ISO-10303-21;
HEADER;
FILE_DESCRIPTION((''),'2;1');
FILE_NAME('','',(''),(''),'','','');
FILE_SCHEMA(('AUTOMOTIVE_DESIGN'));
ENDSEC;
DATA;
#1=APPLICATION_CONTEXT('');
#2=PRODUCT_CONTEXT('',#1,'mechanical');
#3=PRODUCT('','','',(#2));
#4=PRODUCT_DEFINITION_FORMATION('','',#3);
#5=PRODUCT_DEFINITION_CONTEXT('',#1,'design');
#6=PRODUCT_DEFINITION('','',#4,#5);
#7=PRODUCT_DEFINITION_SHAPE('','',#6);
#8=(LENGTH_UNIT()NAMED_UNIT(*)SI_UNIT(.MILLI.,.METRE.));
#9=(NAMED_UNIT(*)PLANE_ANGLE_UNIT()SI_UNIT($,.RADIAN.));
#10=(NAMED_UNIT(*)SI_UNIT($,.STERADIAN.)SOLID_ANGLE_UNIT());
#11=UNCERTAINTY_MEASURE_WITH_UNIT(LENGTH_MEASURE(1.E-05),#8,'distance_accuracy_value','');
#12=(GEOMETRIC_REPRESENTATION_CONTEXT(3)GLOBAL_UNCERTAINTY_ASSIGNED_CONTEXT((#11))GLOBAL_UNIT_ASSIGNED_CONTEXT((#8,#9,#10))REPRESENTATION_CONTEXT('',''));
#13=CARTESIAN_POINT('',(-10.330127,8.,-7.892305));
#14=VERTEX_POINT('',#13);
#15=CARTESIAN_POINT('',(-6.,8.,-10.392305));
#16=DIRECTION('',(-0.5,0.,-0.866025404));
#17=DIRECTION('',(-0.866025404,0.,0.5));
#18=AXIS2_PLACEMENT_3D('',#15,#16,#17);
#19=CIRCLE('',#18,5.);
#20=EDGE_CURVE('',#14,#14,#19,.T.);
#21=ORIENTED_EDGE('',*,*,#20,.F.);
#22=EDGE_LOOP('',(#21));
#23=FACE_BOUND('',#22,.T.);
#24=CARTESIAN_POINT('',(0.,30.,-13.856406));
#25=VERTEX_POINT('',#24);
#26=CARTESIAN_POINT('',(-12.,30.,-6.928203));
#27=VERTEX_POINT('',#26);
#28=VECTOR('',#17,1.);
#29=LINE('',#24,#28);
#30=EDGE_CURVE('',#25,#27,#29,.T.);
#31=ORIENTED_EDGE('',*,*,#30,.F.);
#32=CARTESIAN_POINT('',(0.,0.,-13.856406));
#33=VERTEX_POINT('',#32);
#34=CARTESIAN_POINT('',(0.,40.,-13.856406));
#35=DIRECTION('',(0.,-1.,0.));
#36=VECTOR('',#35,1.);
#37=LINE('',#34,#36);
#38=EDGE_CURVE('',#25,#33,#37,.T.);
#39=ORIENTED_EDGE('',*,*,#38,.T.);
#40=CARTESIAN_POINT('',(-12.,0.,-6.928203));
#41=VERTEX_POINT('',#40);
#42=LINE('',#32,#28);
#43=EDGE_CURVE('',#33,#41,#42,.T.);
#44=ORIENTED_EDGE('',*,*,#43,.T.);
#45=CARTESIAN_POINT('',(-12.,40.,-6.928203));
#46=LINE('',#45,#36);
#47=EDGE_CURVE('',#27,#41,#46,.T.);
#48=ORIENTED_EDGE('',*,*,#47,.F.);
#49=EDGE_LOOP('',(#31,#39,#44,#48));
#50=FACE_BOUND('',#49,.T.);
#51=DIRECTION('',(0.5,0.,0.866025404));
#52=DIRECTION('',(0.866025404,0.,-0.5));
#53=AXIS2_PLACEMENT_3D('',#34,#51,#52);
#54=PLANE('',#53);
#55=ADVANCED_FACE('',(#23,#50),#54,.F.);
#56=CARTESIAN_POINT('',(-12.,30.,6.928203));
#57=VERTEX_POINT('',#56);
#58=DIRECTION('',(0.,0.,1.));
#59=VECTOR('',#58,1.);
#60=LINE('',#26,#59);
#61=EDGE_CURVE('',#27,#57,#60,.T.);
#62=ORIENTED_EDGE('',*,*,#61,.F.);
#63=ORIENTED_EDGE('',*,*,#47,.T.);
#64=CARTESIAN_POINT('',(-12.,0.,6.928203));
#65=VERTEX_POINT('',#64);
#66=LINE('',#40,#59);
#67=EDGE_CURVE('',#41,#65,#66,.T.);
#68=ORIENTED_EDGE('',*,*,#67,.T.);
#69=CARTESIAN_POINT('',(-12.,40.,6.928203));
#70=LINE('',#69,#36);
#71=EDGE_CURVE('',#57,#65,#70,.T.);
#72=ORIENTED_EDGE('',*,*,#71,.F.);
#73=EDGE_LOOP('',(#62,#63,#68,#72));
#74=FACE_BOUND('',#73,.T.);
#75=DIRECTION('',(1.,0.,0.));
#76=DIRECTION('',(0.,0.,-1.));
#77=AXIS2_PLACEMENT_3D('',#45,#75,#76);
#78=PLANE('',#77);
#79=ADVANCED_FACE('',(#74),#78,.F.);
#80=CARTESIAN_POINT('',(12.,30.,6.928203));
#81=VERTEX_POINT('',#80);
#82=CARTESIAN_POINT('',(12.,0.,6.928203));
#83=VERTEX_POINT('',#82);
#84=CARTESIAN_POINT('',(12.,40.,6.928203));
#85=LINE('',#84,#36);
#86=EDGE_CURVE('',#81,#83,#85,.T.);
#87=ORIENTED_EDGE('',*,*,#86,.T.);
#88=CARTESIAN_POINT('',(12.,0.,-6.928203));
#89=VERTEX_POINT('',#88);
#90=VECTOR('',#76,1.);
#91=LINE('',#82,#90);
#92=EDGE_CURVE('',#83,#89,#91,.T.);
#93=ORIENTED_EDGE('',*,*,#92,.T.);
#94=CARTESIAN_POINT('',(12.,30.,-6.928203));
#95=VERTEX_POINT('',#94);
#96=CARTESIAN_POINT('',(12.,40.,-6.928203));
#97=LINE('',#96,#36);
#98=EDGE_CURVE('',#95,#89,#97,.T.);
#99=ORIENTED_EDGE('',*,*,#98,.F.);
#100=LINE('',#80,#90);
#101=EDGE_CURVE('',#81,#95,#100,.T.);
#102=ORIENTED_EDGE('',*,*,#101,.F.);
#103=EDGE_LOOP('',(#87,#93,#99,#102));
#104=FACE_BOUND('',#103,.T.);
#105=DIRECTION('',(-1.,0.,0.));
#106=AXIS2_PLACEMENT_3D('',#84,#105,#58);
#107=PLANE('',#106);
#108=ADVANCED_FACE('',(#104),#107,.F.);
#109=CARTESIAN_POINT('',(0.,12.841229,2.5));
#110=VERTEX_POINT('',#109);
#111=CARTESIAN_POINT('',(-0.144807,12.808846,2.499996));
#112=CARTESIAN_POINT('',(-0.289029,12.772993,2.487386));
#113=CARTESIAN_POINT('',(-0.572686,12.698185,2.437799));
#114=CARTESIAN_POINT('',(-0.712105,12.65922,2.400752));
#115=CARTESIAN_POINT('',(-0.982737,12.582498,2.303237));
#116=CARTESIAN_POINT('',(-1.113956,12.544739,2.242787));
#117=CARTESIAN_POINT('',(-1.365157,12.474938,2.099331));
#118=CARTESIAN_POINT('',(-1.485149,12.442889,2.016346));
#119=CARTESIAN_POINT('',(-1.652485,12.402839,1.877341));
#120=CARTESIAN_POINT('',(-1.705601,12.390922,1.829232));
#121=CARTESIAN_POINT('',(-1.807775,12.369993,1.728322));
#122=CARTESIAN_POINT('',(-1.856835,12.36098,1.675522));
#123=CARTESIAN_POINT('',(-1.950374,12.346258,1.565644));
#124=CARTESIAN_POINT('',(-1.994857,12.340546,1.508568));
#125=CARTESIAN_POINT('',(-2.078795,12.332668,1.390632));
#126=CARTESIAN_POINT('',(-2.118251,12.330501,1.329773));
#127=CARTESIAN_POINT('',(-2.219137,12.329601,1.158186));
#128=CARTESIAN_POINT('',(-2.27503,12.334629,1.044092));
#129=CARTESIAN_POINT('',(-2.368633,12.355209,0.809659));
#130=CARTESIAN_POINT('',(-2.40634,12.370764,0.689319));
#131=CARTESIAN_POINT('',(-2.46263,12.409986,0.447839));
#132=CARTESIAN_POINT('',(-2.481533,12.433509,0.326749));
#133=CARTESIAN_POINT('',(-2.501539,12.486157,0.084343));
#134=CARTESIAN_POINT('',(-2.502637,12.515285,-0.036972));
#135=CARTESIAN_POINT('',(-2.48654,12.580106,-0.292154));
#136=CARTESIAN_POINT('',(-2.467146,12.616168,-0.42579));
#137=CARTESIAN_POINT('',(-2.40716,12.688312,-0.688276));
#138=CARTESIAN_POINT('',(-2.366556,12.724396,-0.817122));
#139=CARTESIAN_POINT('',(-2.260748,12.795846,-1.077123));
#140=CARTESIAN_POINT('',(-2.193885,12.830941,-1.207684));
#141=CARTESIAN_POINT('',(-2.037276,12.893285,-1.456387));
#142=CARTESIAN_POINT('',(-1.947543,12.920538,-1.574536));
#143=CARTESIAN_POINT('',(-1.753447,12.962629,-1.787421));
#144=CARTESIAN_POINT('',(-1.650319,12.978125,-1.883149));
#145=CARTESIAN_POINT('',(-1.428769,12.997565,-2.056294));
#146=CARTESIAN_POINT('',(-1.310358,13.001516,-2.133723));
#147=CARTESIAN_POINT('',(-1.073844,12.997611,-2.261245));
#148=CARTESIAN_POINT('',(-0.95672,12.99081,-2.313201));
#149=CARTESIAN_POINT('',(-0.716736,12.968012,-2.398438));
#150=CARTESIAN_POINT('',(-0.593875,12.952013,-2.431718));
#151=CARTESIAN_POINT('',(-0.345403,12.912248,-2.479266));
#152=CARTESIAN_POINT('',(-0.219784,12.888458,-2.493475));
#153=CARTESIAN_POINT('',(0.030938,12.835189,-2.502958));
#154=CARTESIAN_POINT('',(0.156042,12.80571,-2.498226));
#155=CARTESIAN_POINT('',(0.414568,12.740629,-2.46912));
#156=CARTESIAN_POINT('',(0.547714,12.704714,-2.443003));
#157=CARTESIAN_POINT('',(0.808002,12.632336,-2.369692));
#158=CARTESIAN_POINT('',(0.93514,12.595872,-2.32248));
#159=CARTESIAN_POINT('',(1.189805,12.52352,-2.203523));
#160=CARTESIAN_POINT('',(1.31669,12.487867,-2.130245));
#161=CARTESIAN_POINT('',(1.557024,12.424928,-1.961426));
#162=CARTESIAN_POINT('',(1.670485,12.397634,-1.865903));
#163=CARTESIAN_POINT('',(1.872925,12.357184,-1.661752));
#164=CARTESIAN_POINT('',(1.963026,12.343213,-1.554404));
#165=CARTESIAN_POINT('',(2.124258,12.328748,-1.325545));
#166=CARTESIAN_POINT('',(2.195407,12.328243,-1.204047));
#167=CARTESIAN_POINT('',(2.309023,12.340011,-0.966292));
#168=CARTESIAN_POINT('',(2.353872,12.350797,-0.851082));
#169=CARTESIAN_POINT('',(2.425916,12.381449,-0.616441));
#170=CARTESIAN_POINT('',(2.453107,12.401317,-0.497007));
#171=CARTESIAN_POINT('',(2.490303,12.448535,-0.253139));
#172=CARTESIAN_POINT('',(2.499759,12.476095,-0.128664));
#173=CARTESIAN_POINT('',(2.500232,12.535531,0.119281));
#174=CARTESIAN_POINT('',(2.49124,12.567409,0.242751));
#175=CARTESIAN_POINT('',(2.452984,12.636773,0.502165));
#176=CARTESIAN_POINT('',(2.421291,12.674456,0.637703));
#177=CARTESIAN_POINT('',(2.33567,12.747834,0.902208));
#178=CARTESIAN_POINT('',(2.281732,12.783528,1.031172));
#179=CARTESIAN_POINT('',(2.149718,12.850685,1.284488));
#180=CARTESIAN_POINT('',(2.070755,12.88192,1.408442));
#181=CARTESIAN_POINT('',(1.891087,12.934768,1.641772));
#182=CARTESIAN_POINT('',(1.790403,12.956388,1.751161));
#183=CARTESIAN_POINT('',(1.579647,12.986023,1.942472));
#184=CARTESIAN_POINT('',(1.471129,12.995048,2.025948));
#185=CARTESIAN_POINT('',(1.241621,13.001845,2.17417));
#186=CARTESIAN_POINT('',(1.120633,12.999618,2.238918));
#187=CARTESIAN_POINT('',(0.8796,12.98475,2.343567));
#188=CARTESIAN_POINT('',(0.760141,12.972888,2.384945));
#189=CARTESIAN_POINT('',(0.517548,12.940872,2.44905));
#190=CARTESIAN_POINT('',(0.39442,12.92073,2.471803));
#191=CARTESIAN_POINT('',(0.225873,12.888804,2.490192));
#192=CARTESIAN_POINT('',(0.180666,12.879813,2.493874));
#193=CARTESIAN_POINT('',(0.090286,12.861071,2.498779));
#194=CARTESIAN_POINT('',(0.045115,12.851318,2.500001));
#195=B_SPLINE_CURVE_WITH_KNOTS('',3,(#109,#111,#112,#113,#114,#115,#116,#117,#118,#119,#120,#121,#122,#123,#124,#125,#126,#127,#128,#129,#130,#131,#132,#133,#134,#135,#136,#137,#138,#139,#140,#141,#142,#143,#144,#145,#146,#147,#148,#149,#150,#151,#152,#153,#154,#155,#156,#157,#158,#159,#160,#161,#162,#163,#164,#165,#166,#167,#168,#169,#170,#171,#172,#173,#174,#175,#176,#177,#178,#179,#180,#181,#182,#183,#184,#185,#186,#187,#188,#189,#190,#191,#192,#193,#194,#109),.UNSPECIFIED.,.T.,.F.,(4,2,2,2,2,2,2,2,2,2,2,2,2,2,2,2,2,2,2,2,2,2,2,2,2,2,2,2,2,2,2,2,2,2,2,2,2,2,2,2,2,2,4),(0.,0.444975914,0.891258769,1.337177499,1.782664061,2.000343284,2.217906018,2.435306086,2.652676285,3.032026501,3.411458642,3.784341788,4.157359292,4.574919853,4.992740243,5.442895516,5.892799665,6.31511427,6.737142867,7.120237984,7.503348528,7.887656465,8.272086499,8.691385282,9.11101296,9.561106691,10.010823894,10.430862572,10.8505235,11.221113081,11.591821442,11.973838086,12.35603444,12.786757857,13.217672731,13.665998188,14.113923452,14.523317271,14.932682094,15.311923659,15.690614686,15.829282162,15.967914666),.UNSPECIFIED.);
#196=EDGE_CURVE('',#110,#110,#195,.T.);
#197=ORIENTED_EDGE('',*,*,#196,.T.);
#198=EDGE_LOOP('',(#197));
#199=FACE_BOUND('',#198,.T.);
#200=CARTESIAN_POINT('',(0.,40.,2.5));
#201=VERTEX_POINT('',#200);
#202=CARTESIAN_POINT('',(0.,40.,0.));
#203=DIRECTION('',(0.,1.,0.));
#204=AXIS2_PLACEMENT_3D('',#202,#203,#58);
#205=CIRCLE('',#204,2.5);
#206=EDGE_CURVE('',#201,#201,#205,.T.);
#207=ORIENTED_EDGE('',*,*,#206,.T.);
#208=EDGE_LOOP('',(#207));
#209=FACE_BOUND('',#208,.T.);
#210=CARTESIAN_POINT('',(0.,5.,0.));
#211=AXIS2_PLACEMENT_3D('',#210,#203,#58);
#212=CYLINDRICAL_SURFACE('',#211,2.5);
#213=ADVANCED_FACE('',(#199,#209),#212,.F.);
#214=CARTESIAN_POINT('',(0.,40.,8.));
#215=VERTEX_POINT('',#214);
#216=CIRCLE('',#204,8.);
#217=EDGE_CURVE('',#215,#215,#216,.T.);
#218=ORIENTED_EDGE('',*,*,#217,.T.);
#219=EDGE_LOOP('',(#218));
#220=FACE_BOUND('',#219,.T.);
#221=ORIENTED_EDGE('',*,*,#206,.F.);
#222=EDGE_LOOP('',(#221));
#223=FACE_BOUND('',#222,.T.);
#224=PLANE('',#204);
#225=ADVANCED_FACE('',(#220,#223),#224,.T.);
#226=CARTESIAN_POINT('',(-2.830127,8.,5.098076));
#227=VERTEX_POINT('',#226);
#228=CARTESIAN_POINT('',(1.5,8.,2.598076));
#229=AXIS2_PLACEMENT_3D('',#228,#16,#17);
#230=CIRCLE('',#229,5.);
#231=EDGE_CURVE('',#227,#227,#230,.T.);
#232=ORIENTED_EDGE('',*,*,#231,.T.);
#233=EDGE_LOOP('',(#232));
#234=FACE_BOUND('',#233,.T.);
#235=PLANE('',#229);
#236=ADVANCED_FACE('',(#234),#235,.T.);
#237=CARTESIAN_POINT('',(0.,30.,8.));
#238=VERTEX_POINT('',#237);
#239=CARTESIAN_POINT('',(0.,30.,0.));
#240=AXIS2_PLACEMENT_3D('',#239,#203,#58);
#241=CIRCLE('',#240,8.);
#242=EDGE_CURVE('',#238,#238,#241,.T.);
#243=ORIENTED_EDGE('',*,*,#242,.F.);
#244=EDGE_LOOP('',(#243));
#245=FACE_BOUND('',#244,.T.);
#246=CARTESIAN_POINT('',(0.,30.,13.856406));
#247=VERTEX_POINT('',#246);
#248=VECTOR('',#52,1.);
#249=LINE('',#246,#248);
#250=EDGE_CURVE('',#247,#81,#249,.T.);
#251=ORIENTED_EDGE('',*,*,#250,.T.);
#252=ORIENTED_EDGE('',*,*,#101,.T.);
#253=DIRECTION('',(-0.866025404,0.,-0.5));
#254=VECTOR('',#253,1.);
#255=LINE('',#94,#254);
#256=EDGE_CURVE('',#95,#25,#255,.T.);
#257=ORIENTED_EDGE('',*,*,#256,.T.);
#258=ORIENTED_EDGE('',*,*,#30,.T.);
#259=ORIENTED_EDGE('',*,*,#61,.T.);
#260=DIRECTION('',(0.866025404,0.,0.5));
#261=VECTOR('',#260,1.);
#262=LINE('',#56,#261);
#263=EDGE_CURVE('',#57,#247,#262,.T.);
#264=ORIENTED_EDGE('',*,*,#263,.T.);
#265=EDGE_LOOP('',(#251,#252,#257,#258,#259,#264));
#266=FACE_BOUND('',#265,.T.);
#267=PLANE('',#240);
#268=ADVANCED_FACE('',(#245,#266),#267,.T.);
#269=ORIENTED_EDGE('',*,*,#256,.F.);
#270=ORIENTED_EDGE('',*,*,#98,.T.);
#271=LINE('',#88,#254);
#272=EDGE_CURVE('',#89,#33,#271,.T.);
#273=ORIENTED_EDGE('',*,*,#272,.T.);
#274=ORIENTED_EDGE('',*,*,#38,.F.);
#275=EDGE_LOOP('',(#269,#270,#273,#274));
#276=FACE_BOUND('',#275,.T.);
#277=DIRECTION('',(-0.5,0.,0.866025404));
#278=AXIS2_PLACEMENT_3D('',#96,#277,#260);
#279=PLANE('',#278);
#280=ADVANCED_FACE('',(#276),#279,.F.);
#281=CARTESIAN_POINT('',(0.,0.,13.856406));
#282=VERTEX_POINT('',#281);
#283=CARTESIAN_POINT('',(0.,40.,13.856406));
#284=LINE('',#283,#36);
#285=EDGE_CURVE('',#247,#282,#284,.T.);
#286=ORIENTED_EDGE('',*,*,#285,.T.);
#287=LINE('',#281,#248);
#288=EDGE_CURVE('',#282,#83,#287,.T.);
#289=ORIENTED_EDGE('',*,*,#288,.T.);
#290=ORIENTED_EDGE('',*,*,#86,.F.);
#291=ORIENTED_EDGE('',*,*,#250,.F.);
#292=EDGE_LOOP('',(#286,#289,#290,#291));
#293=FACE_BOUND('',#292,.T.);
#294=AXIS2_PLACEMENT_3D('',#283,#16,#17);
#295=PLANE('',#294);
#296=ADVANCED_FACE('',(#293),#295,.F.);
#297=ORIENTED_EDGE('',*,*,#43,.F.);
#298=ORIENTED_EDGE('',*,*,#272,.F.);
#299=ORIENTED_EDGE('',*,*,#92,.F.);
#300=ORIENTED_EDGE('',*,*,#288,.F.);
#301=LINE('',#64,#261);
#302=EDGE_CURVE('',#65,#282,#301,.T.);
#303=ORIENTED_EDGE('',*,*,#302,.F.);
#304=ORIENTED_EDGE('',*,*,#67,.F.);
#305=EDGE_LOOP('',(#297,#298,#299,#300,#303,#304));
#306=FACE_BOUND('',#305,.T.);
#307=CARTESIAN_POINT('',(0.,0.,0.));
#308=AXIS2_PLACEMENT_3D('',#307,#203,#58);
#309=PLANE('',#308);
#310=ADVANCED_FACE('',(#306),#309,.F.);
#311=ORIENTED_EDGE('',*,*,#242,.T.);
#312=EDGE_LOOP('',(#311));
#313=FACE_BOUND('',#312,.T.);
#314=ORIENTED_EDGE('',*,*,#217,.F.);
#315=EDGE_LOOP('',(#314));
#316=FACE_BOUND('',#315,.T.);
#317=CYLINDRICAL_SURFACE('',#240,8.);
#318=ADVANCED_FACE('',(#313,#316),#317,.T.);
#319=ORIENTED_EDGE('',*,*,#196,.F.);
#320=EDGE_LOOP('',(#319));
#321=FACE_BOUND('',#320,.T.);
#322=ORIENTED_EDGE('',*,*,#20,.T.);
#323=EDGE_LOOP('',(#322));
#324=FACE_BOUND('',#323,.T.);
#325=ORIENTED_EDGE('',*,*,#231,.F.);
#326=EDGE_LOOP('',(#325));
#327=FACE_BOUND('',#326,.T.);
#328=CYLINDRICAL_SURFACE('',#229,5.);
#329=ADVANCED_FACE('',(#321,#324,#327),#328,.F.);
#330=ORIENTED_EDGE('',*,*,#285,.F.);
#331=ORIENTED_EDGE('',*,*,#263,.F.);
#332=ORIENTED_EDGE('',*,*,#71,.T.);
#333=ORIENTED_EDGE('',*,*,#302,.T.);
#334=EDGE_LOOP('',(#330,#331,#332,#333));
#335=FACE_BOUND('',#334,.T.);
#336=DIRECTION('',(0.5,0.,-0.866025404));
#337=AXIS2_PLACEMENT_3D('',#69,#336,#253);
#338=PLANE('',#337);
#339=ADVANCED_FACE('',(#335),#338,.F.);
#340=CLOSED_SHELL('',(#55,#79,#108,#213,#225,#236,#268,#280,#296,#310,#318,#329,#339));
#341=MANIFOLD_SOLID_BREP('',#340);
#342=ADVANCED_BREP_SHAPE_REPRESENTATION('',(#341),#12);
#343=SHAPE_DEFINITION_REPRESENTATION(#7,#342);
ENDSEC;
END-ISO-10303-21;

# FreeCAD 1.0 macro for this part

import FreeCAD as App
import Part
import Sketcher

V = App.Vector
Q = App.Units.Quantity

doc = App.newDocument("Part")
body = doc.addObject("PartDesign::Body", "Body")

# Sketch on XZ plane
sketch1 = body.newObject("Sketcher::SketchObject", "Sketch")
sketch1.AttachmentSupport = (doc.getObject("XZ_Plane"), [""])
sketch1.MapMode = "FlatFace"
sketch1.addGeometry([
    Part.LineSegment(V(0, -13.856406, 0), V(-12, -6.928203, 0)),  # 0
    Part.LineSegment(V(-12, -6.928203, 0), V(-12, 6.928203, 0)),  # 1
    Part.LineSegment(V(-12, 6.928203, 0), V(0, 13.856406, 0)),  # 2
    Part.LineSegment(V(0, 13.856406, 0), V(12, 6.928203, 0)),  # 3
    Part.LineSegment(V(12, 6.928203, 0), V(12, -6.928203, 0)),  # 4
    Part.LineSegment(V(12, -6.928203, 0), V(0, -13.856406, 0)),  # 5
], False)
sketch1.addConstraint([
    Sketcher.Constraint("Coincident", 0, 2, 1, 1),
    Sketcher.Constraint("Coincident", 1, 2, 2, 1),
    Sketcher.Constraint("Coincident", 2, 2, 3, 1),
    Sketcher.Constraint("Coincident", 3, 2, 4, 1),
    Sketcher.Constraint("Coincident", 4, 2, 5, 1),
    Sketcher.Constraint("Coincident", 5, 2, 0, 1),
    Sketcher.Constraint("Vertical", 1),
    Sketcher.Constraint("Vertical", 4),
    Sketcher.Constraint("Symmetric", 0, 2, 3, 2, -1, 1),
    Sketcher.Constraint("Symmetric", 2, 2, 5, 2, -1, 1),
    Sketcher.Constraint("PointOnObject", 2, 2, -2),
    Sketcher.Constraint("Parallel", 2, 5),
    Sketcher.Constraint("Horizontal", 1, 2, 3, 2),
    Sketcher.Constraint("Angle", 0, Q("150 deg")),
    Sketcher.Constraint("DistanceX", 0, 2, -1, 1, Q("12 mm")),
    Sketcher.Constraint("DistanceY", 1, 1, 1, 2, Q("13.856406 mm")),
])
pad1 = body.newObject("PartDesign::Pad", "Pad")
pad1.Profile = sketch1
pad1.Length = 40
pad1.Reversed = True

# Sketch on XZ plane
sketch2 = body.newObject("Sketcher::SketchObject", "Sketch001")
sketch2.AttachmentSupport = (doc.getObject("XZ_Plane"), [""])
sketch2.MapMode = "FlatFace"
sketch2.AttachmentOffset = App.Placement(V(0, 0, -40), App.Rotation())
sketch2.addGeometry(Part.Circle(V(0, 0, 0), V(0, 0, 1), 2.5), False)
sketch2.addConstraint([
    Sketcher.Constraint("Coincident", 0, 3, -1, 1),
    Sketcher.Constraint("Diameter", 0, Q("5 mm")),
])
pocket1 = body.newObject("PartDesign::Pocket", "Pocket")
pocket1.Profile = sketch2
pocket1.Length = 35
pocket1.Reversed = True

# Sketch on XZ plane
sketch3 = body.newObject("Sketcher::SketchObject", "Sketch002")
sketch3.AttachmentSupport = (doc.getObject("XZ_Plane"), [""])
sketch3.MapMode = "FlatFace"
sketch3.AttachmentOffset = App.Placement(V(0, 0, -40), App.Rotation())
sketch3.addGeometry([
    Part.LineSegment(V(-18.426, -20.282, 0), V(-18.426, 20.282, 0)),  # 0
    Part.LineSegment(V(-18.426, 20.282, 0), V(18.426, 20.282, 0)),  # 1
    Part.LineSegment(V(18.426, 20.282, 0), V(18.426, -20.282, 0)),  # 2
    Part.LineSegment(V(18.426, -20.282, 0), V(-18.426, -20.282, 0)),  # 3
    Part.Circle(V(0, 0, 0), V(0, 0, 1), 8),  # 4
], False)
sketch3.addConstraint([
    Sketcher.Constraint("Coincident", 0, 2, 1, 1),
    Sketcher.Constraint("Coincident", 1, 2, 2, 1),
    Sketcher.Constraint("Coincident", 2, 2, 3, 1),
    Sketcher.Constraint("Coincident", 3, 2, 0, 1),
    Sketcher.Constraint("Vertical", 0),
    Sketcher.Constraint("Horizontal", 1),
    Sketcher.Constraint("Vertical", 2),
    Sketcher.Constraint("Horizontal", 3),
    Sketcher.Constraint("Coincident", 4, 3, -1, 1),
    Sketcher.Constraint("Symmetric", 0, 2, 2, 2, -1, 1),
    Sketcher.Constraint("Diameter", 4, Q("16 mm")),
    Sketcher.Constraint("DistanceX", 1, 1, 1, 2, Q("36.852 mm")),
    Sketcher.Constraint("DistanceY", 0, 1, 0, 2, Q("40.564 mm")),
])
pocket2 = body.newObject("PartDesign::Pocket", "Pocket001")
pocket2.Profile = sketch3
pocket2.Length = 10
pocket2.Reversed = True

# Sketch on an angled plane
sketch4 = body.newObject("Sketcher::SketchObject", "Sketch003")
sketch4.Placement = App.Placement(V(-6, 0, -10.392305), App.Rotation(V(-0.866025404, 0, 0.5), V(0, 1, 0), V(-0.5, 0, -0.866025404), "ZXY"))
sketch4.addGeometry(Part.Circle(V(0, 8, 0), V(0, 0, 1), 5), False)
sketch4.addConstraint([
    Sketcher.Constraint("PointOnObject", 0, 3, -2),
    Sketcher.Constraint("Diameter", 0, Q("10 mm")),
    Sketcher.Constraint("DistanceY", -1, 1, 0, 3, Q("8 mm")),
])
pocket3 = body.newObject("PartDesign::Pocket", "Pocket002")
pocket3.Profile = sketch4
pocket3.Length = 15

doc.recompute()
